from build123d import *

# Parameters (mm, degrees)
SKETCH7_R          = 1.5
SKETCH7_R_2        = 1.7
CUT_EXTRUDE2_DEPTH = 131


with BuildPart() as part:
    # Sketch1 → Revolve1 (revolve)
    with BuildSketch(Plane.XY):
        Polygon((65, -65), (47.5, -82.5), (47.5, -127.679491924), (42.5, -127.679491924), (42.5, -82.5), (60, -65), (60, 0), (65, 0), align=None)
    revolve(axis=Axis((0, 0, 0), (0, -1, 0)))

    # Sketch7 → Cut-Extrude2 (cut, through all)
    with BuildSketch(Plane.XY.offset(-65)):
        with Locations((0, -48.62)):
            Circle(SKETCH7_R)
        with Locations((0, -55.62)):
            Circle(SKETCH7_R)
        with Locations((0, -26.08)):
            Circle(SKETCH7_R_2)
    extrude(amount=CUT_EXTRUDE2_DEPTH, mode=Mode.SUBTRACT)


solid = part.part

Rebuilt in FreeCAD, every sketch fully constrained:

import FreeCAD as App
import Part
import Sketcher
Q = App.Units.Quantity

doc = App.newDocument("Part")
body = doc.addObject("PartDesign::Body", "Body")

sketch1 = doc.addObject("Sketcher::SketchObject", "Sketch")
body.addObject(sketch1)
sketch1.AttachmentSupport = (doc.XY_Plane, [""])
sketch1.MapMode = "FlatFace"
sketch1.addGeometry(Part.LineSegment(App.Vector(48, -82, 0), App.Vector(65, -65, 0)), False)
sketch1.addGeometry(Part.LineSegment(App.Vector(65, -65, 0), App.Vector(65, 0, 0)), False)
sketch1.addGeometry(Part.LineSegment(App.Vector(65, 0, 0), App.Vector(60, 0, 0)), False)
sketch1.addGeometry(Part.LineSegment(App.Vector(60, 0, 0), App.Vector(60, -65, 0)), False)
sketch1.addGeometry(Part.LineSegment(App.Vector(60, -65, 0), App.Vector(42, -82, 0)), False)
sketch1.addGeometry(Part.LineSegment(App.Vector(42, -82, 0), App.Vector(42, -128, 0)), False)
sketch1.addGeometry(Part.LineSegment(App.Vector(42, -128, 0), App.Vector(48, -128, 0)), False)
sketch1.addGeometry(Part.LineSegment(App.Vector(48, -128, 0), App.Vector(48, -82, 0)), False)
sketch1.addConstraint(Sketcher.Constraint("Coincident", 0, 2, 1, 1))
sketch1.addConstraint(Sketcher.Constraint("Coincident", 1, 2, 2, 1))
sketch1.addConstraint(Sketcher.Constraint("Coincident", 2, 2, 3, 1))
sketch1.addConstraint(Sketcher.Constraint("Coincident", 3, 2, 4, 1))
sketch1.addConstraint(Sketcher.Constraint("Coincident", 4, 2, 5, 1))
sketch1.addConstraint(Sketcher.Constraint("Coincident", 5, 2, 6, 1))
sketch1.addConstraint(Sketcher.Constraint("Coincident", 6, 2, 7, 1))
sketch1.addConstraint(Sketcher.Constraint("Coincident", 7, 2, 0, 1))
sketch1.addConstraint(Sketcher.Constraint("Vertical", 1))
sketch1.addConstraint(Sketcher.Constraint("Horizontal", 2))
sketch1.addConstraint(Sketcher.Constraint("Vertical", 3))
sketch1.addConstraint(Sketcher.Constraint("Vertical", 5))
sketch1.addConstraint(Sketcher.Constraint("Horizontal", 6))
sketch1.addConstraint(Sketcher.Constraint("Vertical", 7))
sketch1.addConstraint(Sketcher.Constraint("PointOnObject", 1, 2, -1))
sketch1.addConstraint(Sketcher.Constraint("Parallel", 0, 4))
sketch1.addConstraint(Sketcher.Constraint("Horizontal", 0, 2, 3, 2))
sketch1.addConstraint(Sketcher.Constraint("Horizontal", 4, 2, 7, 2))
sketch1.addConstraint(Sketcher.Constraint("DistanceX", 2, 2, 2, 1, 5.0))
sketch1.addConstraint(Sketcher.Constraint("DistanceY", 1, 1, 1, 2, 65.0))
sketch1.addConstraint(Sketcher.Constraint("Angle", 0, Q("45 deg")))
sketch1.addConstraint(Sketcher.Constraint("DistanceX", -1, 1, 0, 2, 65.0))
sketch1.addConstraint(Sketcher.Constraint("DistanceX", -1, 1, 4, 2, 42.5))
sketch1.addConstraint(Sketcher.Constraint("DistanceY", 5, 2, 5, 1, 45.179492))
revolution = doc.addObject("PartDesign::Revolution", "Revolution")
body.addObject(revolution)
revolution.Profile = sketch1
revolution.ReferenceAxis = (sketch1, ["V_Axis"])
revolution.Angle = 360

sketch2 = doc.addObject("Sketcher::SketchObject", "Sketch001")
body.addObject(sketch2)
sketch2.AttachmentSupport = (doc.XY_Plane, [""])
sketch2.MapMode = "FlatFace"
sketch2.AttachmentOffset = App.Placement(App.Vector(0, 0, -65), App.Rotation())
sketch2.addGeometry(Part.Circle(App.Vector(0, -48.6, 0), App.Vector(0, 0, 1), 1.5), False)
sketch2.addGeometry(Part.Circle(App.Vector(0, -55.6, 0), App.Vector(0, 0, 1), 1.5), False)
sketch2.addGeometry(Part.Circle(App.Vector(0, -26.1, 0), App.Vector(0, 0, 1), 1.7), False)
sketch2.addConstraint(Sketcher.Constraint("Equal", 0, 1))
sketch2.addConstraint(Sketcher.Constraint("PointOnObject", 0, 3, -2))
sketch2.addConstraint(Sketcher.Constraint("PointOnObject", 1, 3, -2))
sketch2.addConstraint(Sketcher.Constraint("PointOnObject", 2, 3, -2))
sketch2.addConstraint(Sketcher.Constraint("Diameter", 0, 3.0))
sketch2.addConstraint(Sketcher.Constraint("Diameter", 2, 3.4))
sketch2.addConstraint(Sketcher.Constraint("DistanceY", 1, 3, 0, 3, 7.0))
sketch2.addConstraint(Sketcher.Constraint("DistanceY", 0, 3, -1, 1, 48.62))
sketch2.addConstraint(Sketcher.Constraint("DistanceY", 2, 3, -1, 1, 26.08))
pocket1 = doc.addObject("PartDesign::Pocket", "Pocket")
body.addObject(pocket1)
pocket1.Profile = sketch2
pocket1.Type = "ThroughAll"
pocket1.Reversed = True

doc.recompute()
